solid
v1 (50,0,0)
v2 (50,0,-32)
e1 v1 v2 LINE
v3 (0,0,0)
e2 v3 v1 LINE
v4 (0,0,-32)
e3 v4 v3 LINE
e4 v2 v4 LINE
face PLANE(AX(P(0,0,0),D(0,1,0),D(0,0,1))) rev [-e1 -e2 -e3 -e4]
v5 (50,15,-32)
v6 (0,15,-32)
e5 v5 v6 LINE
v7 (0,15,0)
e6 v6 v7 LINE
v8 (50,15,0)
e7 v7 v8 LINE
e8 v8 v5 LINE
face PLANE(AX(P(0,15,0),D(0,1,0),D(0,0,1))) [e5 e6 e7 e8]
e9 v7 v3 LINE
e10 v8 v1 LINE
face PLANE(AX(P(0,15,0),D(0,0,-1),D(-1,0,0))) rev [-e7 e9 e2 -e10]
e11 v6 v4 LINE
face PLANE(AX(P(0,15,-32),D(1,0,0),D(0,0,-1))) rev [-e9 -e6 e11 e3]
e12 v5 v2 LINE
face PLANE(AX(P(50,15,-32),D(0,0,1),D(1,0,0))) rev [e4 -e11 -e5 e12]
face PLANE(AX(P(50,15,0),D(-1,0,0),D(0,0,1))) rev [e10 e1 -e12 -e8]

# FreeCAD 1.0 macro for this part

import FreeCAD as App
import Part
import Sketcher

V = App.Vector

doc = App.newDocument("Part")
body = doc.addObject("PartDesign::Body", "Body")

# Sketch on XZ plane
sketch1 = body.newObject("Sketcher::SketchObject", "Sketch")
sketch1.AttachmentSupport = (doc.getObject("XZ_Plane"), [""])
sketch1.MapMode = "FlatFace"
sketch1.addGeometry([
    Part.LineSegment(V(0, -32, 0), V(0, 0, 0)),
    Part.LineSegment(V(0, 0, 0), V(50, 0, 0)),
    Part.LineSegment(V(50, 0, 0), V(50, -32, 0)),
    Part.LineSegment(V(50, -32, 0), V(0, -32, 0)),
], False)
sketch1.addConstraint([
    Sketcher.Constraint("Coincident", 0, 2, 1, 1),
    Sketcher.Constraint("Coincident", 1, 2, 2, 1),
    Sketcher.Constraint("Coincident", 2, 2, 3, 1),
    Sketcher.Constraint("Coincident", 3, 2, 0, 1),
    Sketcher.Constraint("Vertical", 0),
    Sketcher.Constraint("Horizontal", 1),
    Sketcher.Constraint("Vertical", 2),
    Sketcher.Constraint("Horizontal", 3),
    Sketcher.Constraint("Coincident", 0, 2, -1, 1),
    Sketcher.Constraint("DistanceX", 1, 1, 1, 2, 50.0),
    Sketcher.Constraint("DistanceY", 0, 1, 0, 2, 32.0),
])
pad1 = body.newObject("PartDesign::Pad", "Pad")
pad1.Profile = sketch1
pad1.Length = 15
pad1.Reversed = True

doc.recompute()
